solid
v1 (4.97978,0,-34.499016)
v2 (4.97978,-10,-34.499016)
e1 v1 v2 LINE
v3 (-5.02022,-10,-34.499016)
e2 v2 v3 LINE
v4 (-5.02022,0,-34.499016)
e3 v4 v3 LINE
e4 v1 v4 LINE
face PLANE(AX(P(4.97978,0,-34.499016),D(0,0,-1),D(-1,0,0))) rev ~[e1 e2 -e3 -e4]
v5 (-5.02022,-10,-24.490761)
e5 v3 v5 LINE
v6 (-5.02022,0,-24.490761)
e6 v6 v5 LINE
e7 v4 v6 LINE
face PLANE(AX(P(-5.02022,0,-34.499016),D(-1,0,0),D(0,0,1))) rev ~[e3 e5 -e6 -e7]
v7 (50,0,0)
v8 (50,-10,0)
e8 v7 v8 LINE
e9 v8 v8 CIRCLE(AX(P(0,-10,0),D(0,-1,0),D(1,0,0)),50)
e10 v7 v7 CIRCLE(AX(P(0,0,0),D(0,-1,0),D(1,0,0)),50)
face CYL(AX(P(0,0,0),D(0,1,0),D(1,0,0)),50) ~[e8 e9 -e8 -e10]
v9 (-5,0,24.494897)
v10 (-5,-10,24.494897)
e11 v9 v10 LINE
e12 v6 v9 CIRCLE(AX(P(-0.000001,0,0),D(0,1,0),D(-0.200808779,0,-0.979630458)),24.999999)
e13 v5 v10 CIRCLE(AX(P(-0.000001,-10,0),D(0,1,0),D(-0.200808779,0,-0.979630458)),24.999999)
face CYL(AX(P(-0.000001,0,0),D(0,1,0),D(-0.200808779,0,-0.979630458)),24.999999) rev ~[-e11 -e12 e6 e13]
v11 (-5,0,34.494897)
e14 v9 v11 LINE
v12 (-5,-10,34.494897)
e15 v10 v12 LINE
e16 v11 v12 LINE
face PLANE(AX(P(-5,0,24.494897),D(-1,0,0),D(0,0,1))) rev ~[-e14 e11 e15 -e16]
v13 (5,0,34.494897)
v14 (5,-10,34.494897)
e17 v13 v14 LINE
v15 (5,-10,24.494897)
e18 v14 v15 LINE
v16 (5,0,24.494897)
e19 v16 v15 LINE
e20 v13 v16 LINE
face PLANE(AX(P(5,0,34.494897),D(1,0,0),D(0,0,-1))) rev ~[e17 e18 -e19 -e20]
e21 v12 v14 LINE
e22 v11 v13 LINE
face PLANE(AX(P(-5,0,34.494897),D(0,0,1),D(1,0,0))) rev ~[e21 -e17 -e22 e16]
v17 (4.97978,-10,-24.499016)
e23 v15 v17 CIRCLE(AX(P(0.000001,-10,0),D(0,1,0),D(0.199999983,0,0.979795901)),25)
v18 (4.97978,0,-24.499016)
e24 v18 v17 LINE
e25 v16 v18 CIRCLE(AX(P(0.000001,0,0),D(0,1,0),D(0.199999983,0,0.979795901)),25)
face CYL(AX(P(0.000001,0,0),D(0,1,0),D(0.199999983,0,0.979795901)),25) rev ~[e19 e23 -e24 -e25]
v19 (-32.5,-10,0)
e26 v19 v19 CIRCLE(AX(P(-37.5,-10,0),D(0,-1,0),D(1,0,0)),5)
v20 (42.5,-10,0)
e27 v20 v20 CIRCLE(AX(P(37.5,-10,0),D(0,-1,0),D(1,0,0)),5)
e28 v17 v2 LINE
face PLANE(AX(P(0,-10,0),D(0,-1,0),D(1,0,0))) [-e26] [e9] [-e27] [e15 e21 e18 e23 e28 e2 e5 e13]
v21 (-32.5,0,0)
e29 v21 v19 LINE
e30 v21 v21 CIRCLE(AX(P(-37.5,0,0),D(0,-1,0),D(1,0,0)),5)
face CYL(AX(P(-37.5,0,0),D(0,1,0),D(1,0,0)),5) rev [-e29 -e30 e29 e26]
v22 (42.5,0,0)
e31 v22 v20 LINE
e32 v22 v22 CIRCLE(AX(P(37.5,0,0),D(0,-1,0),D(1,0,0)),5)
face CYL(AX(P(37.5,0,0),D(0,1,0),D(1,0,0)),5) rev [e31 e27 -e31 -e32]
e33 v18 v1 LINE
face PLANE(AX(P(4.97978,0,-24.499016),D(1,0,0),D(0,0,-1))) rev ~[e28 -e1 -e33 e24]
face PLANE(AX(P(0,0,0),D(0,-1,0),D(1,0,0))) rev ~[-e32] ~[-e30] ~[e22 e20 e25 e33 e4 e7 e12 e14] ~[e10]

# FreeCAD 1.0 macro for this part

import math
import FreeCAD as App
import Part
import Sketcher

doc = App.newDocument("Part")
body = doc.addObject("PartDesign::Body", "Body")

# Sketch on XZ plane
sketch1 = body.newObject("Sketcher::SketchObject", "Sketch")
sketch1.AttachmentSupport = (doc.getObject("XZ_Plane"), [""])
sketch1.MapMode = "FlatFace"
sketch1.addGeometry([
    Part.Circle(App.Vector(0, 0, 0), App.Vector(0, 0, 1), 50),  # 0
    Part.Circle(App.Vector(-38, 0, 0), App.Vector(0, 0, 1), 5),  # 1
    Part.LineSegment(App.Vector(-5, -34, 0), App.Vector(-5, -24, 0)),  # 2
    Part.ArcOfCircle(Part.Circle(App.Vector(0, 0, 0), App.Vector(0, 0, 1), 25), math.radians(102), math.radians(258)),  # 3
    Part.LineSegment(App.Vector(-5, 24, 0), App.Vector(-5, 34, 0)),  # 4
    Part.LineSegment(App.Vector(-5, 34, 0), App.Vector(5, 34, 0)),  # 5
    Part.LineSegment(App.Vector(5, 34, 0), App.Vector(5, 24, 0)),  # 6
    Part.ArcOfCircle(Part.Circle(App.Vector(0, 0, 0), App.Vector(0, 0, 1), 25), math.radians(-79), math.radians(78)),  # 7
    Part.LineSegment(App.Vector(5, -24, 0), App.Vector(5, -34, 0)),  # 8
    Part.LineSegment(App.Vector(5, -34, 0), App.Vector(-5, -34, 0)),  # 9
    Part.Circle(App.Vector(38, 0, 0), App.Vector(0, 0, 1), 5),  # 10
], False)
sketch1.addConstraint([
    Sketcher.Constraint("Coincident", 2, 2, 3, 2),
    Sketcher.Constraint("Coincident", 3, 1, 4, 1),
    Sketcher.Constraint("Coincident", 4, 2, 5, 1),
    Sketcher.Constraint("Coincident", 5, 2, 6, 1),
    Sketcher.Constraint("Coincident", 6, 2, 7, 2),
    Sketcher.Constraint("Coincident", 7, 1, 8, 1),
    Sketcher.Constraint("Coincident", 8, 2, 9, 1),
    Sketcher.Constraint("Coincident", 9, 2, 2, 1),
    Sketcher.Constraint("Vertical", 2),
    Sketcher.Constraint("Vertical", 4),
    Sketcher.Constraint("Horizontal", 5),
    Sketcher.Constraint("Vertical", 6),
    Sketcher.Constraint("Vertical", 8),
    Sketcher.Constraint("Horizontal", 9),
    Sketcher.Constraint("Coincident", 0, 3, -1, 1),
    Sketcher.Constraint("Coincident", 3, 3, -1, 1),
    Sketcher.Constraint("Coincident", 7, 3, -1, 1),
    Sketcher.Constraint("Equal", 3, 7),
    Sketcher.Constraint("Equal", 1, 10),
    Sketcher.Constraint("Symmetric", 1, 3, 10, 3, -1, 1),
    Sketcher.Constraint("PointOnObject", 1, 3, -1),
    Sketcher.Constraint("Horizontal", 3, 1, 6, 2),
    Sketcher.Constraint("Equal", 5, 9),
    Sketcher.Constraint("Equal", 9, 4),
    Sketcher.Constraint("Equal", 6, 8),
    Sketcher.Constraint("Diameter", 0, 100.0),
    Sketcher.Constraint("Diameter", 1, 10.0),
    Sketcher.Constraint("Radius", 3, 24.999999),
    Sketcher.Constraint("DistanceX", 5, 1, 5, 2, 10.0),
    Sketcher.Constraint("DistanceX", 1, 3, 10, 3, 75.0),
    Sketcher.Constraint("DistanceY", 2, 1, 2, 2, 10.008255),
])
pad1 = body.newObject("PartDesign::Pad", "Pad")
pad1.Profile = sketch1
pad1.Length = 10

doc.recompute()
